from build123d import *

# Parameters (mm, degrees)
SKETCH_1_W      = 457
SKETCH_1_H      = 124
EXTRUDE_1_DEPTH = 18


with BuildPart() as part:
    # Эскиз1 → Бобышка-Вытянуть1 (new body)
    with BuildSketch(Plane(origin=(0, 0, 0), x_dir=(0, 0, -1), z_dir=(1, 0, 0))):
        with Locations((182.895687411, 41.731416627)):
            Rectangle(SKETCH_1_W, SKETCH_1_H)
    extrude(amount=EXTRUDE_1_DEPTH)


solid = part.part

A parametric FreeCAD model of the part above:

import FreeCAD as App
import Part
import Sketcher
from FreeCAD import Vector
Q = App.Units.Quantity

doc = App.newDocument("Part")
body = doc.addObject("PartDesign::Body", "Body")

# Sketch on YZ plane
sketch1 = body.newObject("Sketcher::SketchObject", "Sketch")
sketch1.AttachmentSupport = (doc.getObject("YZ_Plane"), [""])
sketch1.MapMode = "FlatFace"
sketch1.addGeometry(Part.LineSegment(Vector(104, 46, 0), Vector(-20, 46, 0)), False)
sketch1.addGeometry(Part.LineSegment(Vector(-20, 46, 0), Vector(-20, -411, 0)), False)
sketch1.addGeometry(Part.LineSegment(Vector(-20, -411, 0), Vector(104, -411, 0)), False)
sketch1.addGeometry(Part.LineSegment(Vector(104, -411, 0), Vector(104, 46, 0)), False)
sketch1.addConstraint(Sketcher.Constraint("Coincident", 0, 2, 1, 1))
sketch1.addConstraint(Sketcher.Constraint("Coincident", 1, 2, 2, 1))
sketch1.addConstraint(Sketcher.Constraint("Coincident", 2, 2, 3, 1))
sketch1.addConstraint(Sketcher.Constraint("Coincident", 3, 2, 0, 1))
sketch1.addConstraint(Sketcher.Constraint("Horizontal", 0))
sketch1.addConstraint(Sketcher.Constraint("Vertical", 1))
sketch1.addConstraint(Sketcher.Constraint("Horizontal", 2))
sketch1.addConstraint(Sketcher.Constraint("Vertical", 3))
sketch1.addConstraint(Sketcher.Constraint("DistanceX", 0, 2, 0, 1, Q("124 mm")))
sketch1.addConstraint(Sketcher.Constraint("DistanceY", 1, 2, 1, 1, Q("457 mm")))
sketch1.addConstraint(Sketcher.Constraint("DistanceX", 0, 2, -1, 1, Q("20.268583 mm")))
sketch1.addConstraint(Sketcher.Constraint("DistanceY", -1, 1, 0, 2, Q("45.604313 mm")))
pad1 = body.newObject("PartDesign::Pad", "Pad")
pad1.Profile = sketch1
pad1.Length = 18

doc.recompute()
